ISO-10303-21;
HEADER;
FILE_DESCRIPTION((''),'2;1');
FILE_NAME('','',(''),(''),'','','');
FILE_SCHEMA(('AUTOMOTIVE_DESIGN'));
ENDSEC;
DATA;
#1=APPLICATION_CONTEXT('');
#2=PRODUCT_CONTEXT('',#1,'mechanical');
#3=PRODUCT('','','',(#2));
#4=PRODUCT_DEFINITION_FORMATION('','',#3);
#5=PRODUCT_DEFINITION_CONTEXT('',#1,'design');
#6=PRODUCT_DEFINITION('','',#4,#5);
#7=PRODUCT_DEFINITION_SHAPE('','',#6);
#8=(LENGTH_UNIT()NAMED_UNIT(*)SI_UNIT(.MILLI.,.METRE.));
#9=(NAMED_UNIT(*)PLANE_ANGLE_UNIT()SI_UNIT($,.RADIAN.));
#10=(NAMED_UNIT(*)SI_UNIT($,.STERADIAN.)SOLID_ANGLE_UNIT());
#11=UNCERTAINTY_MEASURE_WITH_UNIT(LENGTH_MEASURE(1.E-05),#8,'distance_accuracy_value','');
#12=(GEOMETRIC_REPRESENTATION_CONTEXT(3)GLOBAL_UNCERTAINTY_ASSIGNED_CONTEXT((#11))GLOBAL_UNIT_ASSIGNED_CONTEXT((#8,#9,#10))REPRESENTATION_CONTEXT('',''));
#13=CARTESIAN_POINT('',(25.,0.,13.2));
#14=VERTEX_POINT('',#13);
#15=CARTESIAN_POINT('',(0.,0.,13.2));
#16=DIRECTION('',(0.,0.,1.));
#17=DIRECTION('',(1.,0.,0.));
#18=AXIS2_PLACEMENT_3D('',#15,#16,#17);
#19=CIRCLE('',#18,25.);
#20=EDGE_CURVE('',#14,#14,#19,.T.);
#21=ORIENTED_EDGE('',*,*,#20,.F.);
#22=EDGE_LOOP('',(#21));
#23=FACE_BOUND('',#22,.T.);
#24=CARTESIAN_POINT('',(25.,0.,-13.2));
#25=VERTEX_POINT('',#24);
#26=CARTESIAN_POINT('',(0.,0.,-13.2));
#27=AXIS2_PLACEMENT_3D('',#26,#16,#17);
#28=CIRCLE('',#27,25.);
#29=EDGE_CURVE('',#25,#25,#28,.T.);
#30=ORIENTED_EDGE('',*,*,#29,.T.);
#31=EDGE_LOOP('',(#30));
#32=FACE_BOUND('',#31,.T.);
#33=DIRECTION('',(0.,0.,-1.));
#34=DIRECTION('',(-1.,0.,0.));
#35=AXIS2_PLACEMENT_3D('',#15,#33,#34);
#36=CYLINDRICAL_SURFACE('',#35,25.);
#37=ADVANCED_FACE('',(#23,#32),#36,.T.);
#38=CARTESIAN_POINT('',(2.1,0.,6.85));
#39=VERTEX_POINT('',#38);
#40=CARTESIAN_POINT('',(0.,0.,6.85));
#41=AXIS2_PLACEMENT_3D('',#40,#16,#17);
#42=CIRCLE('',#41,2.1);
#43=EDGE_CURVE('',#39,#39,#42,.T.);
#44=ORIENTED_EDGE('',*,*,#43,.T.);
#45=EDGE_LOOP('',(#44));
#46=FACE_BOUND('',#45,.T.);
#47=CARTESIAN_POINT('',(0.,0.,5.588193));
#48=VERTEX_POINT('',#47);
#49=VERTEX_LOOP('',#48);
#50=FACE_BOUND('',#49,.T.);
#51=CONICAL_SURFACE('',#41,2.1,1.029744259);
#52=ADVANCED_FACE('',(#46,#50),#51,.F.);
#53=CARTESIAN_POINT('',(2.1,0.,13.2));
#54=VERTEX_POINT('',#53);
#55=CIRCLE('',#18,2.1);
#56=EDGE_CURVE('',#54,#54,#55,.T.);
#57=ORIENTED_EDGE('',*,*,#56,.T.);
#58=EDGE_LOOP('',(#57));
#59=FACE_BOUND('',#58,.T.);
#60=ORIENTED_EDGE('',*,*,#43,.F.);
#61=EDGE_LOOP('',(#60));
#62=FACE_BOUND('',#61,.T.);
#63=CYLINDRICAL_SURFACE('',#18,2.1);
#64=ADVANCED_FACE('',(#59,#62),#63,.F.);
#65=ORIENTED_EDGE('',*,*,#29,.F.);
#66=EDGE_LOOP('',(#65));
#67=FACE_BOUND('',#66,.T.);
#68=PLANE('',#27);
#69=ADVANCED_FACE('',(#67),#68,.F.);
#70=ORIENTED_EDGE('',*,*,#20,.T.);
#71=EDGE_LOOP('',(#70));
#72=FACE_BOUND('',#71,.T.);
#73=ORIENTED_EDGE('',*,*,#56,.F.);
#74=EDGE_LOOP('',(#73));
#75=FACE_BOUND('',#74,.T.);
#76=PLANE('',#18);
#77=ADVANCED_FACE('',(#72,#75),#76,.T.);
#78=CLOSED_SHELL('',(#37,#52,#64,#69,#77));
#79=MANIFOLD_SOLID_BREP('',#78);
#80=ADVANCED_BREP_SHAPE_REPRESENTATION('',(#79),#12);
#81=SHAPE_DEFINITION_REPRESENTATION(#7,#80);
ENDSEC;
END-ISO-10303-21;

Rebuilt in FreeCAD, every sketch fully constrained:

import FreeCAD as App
import Part
import Sketcher

V = App.Vector

doc = App.newDocument("Part")
body = doc.addObject("PartDesign::Body", "Body")

# Sketch on XY plane
sketch1 = doc.addObject("Sketcher::SketchObject", "Sketch")
body.addObject(sketch1)
sketch1.AttachmentSupport = (doc.XY_Plane, [""])
sketch1.MapMode = "FlatFace"
sketch1.addGeometry(Part.Circle(V(0, 0, 0), V(0, 0, 1), 25), False)
sketch1.addConstraint([
    Sketcher.Constraint("Coincident", 0, 3, -1, 1),
    Sketcher.Constraint("Diameter", 0, 50.0),
])
pad1 = doc.addObject("PartDesign::Pad", "Pad")
body.addObject(pad1)
pad1.Profile = sketch1
pad1.Length = 26.4
pad1.Midplane = True

# Sketch on XY plane
sketch2 = doc.addObject("Sketcher::SketchObject", "Sketch001")
body.addObject(sketch2)
sketch2.AttachmentSupport = (doc.XY_Plane, [""])
sketch2.MapMode = "FlatFace"
sketch2.AttachmentOffset = App.Placement(V(0, 0, 13.2), App.Rotation())
sketch2.addGeometry(Part.Circle(V(0, 0, 0), V(0, 0, 1), 2.1), False)
sketch2.addConstraint([
    Sketcher.Constraint("Coincident", 0, 3, -1, 1),
    Sketcher.Constraint("Diameter", 0, 4.2),
])
doc.recompute()
hole = doc.addObject("PartDesign::Hole", "Hole")
body.addObject(hole)
hole.Profile = sketch2
hole.ThreadType = "None"
hole.Diameter = 4.2
hole.DepthType = "Dimension"
hole.Depth = 6.35
hole.DrillPoint = "Angled"
hole.DrillPointAngle = 118

doc.recompute()
